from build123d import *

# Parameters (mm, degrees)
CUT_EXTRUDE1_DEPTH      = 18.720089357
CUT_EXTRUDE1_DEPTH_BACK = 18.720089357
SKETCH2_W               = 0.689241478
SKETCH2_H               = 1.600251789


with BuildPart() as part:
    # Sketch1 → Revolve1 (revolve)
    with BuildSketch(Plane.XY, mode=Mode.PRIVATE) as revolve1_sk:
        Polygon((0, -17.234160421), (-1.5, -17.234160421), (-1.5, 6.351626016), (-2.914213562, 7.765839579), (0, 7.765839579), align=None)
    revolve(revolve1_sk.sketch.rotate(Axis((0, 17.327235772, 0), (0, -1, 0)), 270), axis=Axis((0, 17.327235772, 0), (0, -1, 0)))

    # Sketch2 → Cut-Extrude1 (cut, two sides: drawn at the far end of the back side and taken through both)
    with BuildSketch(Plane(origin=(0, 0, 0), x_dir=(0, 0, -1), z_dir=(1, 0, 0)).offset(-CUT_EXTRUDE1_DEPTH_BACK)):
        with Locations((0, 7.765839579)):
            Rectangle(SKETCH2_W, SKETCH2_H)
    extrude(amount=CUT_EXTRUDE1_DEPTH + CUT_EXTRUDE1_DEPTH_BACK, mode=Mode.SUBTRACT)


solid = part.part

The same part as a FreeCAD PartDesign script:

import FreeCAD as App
import Part
import Sketcher
from FreeCAD import Vector
Q = App.Units.Quantity

doc = App.newDocument("Part")
body = doc.addObject("PartDesign::Body", "Body")

sketch1 = body.newObject("Sketcher::SketchObject", "Sketch")
sketch1.AttachmentSupport = (doc.getObject("XY_Plane"), [""])
sketch1.MapMode = "FlatFace"
sketch1.addGeometry(Part.LineSegment(Vector(-1.5, -17.2, 0), Vector(0, -17.2, 0)), False)
sketch1.addGeometry(Part.LineSegment(Vector(0, -17.2, 0), Vector(0, 7.8, 0)), False)
sketch1.addGeometry(Part.LineSegment(Vector(0, 7.8, 0), Vector(-2.9, 7.8, 0)), False)
sketch1.addGeometry(Part.LineSegment(Vector(-2.9, 7.8, 0), Vector(-1.5, 6.4, 0)), False)
sketch1.addGeometry(Part.LineSegment(Vector(-1.5, 6.4, 0), Vector(-1.5, -17.2, 0)), False)
sketch1.addConstraint(Sketcher.Constraint("Coincident", 0, 2, 1, 1))
sketch1.addConstraint(Sketcher.Constraint("Coincident", 1, 2, 2, 1))
sketch1.addConstraint(Sketcher.Constraint("Coincident", 2, 2, 3, 1))
sketch1.addConstraint(Sketcher.Constraint("Coincident", 3, 2, 4, 1))
sketch1.addConstraint(Sketcher.Constraint("Coincident", 4, 2, 0, 1))
sketch1.addConstraint(Sketcher.Constraint("Horizontal", 0))
sketch1.addConstraint(Sketcher.Constraint("Vertical", 1))
sketch1.addConstraint(Sketcher.Constraint("Horizontal", 2))
sketch1.addConstraint(Sketcher.Constraint("Vertical", 4))
sketch1.addConstraint(Sketcher.Constraint("PointOnObject", 0, 2, -2))
sketch1.addConstraint(Sketcher.Constraint("DistanceY", 1, 1, 1, 2, 25.0))
sketch1.addConstraint(Sketcher.Constraint("Angle", 3, Q("-45 deg")))
sketch1.addConstraint(Sketcher.Constraint("Distance", 3, 2.0))
sketch1.addConstraint(Sketcher.Constraint("DistanceX", 0, 1, 0, 2, 1.5))
sketch1.addConstraint(Sketcher.Constraint("DistanceY", 0, 2, -1, 1, 17.23416))
revolution = body.newObject("PartDesign::Revolution", "Revolution")
revolution.Profile = sketch1
revolution.ReferenceAxis = (sketch1, ["V_Axis"])
revolution.Angle = 360

sketch2 = body.newObject("Sketcher::SketchObject", "Sketch001")
sketch2.AttachmentSupport = (doc.getObject("YZ_Plane"), [""])
sketch2.MapMode = "FlatFace"
sketch2.addGeometry(Part.LineSegment(Vector(8.6, 0.3, 0), Vector(7, 0.3, 0)), False)
sketch2.addGeometry(Part.LineSegment(Vector(7, 0.3, 0), Vector(7, -0.3, 0)), False)
sketch2.addGeometry(Part.LineSegment(Vector(7, -0.3, 0), Vector(8.6, -0.3, 0)), False)
sketch2.addGeometry(Part.LineSegment(Vector(8.6, -0.3, 0), Vector(8.6, 0.3, 0)), False)
sketch2.addConstraint(Sketcher.Constraint("Coincident", 0, 2, 1, 1))
sketch2.addConstraint(Sketcher.Constraint("Coincident", 1, 2, 2, 1))
sketch2.addConstraint(Sketcher.Constraint("Coincident", 2, 2, 3, 1))
sketch2.addConstraint(Sketcher.Constraint("Coincident", 3, 2, 0, 1))
sketch2.addConstraint(Sketcher.Constraint("Horizontal", 0))
sketch2.addConstraint(Sketcher.Constraint("Vertical", 1))
sketch2.addConstraint(Sketcher.Constraint("Horizontal", 2))
sketch2.addConstraint(Sketcher.Constraint("Vertical", 3))
sketch2.addConstraint(Sketcher.Constraint("DistanceX", 0, 2, 0, 1, 1.600252))
sketch2.addConstraint(Sketcher.Constraint("DistanceY", 1, 2, 1, 1, 0.689241))
sketch2.addConstraint(Sketcher.Constraint("DistanceY", -1, 1, 0, 2, 0.344621))
sketch2.addConstraint(Sketcher.Constraint("DistanceX", -1, 1, 0, 2, 6.965714))
pocket1 = body.newObject("PartDesign::Pocket", "Pocket")
pocket1.Profile = sketch2
pocket1.Type = "ThroughAll"
pocket1.Midplane = True

doc.recompute()
